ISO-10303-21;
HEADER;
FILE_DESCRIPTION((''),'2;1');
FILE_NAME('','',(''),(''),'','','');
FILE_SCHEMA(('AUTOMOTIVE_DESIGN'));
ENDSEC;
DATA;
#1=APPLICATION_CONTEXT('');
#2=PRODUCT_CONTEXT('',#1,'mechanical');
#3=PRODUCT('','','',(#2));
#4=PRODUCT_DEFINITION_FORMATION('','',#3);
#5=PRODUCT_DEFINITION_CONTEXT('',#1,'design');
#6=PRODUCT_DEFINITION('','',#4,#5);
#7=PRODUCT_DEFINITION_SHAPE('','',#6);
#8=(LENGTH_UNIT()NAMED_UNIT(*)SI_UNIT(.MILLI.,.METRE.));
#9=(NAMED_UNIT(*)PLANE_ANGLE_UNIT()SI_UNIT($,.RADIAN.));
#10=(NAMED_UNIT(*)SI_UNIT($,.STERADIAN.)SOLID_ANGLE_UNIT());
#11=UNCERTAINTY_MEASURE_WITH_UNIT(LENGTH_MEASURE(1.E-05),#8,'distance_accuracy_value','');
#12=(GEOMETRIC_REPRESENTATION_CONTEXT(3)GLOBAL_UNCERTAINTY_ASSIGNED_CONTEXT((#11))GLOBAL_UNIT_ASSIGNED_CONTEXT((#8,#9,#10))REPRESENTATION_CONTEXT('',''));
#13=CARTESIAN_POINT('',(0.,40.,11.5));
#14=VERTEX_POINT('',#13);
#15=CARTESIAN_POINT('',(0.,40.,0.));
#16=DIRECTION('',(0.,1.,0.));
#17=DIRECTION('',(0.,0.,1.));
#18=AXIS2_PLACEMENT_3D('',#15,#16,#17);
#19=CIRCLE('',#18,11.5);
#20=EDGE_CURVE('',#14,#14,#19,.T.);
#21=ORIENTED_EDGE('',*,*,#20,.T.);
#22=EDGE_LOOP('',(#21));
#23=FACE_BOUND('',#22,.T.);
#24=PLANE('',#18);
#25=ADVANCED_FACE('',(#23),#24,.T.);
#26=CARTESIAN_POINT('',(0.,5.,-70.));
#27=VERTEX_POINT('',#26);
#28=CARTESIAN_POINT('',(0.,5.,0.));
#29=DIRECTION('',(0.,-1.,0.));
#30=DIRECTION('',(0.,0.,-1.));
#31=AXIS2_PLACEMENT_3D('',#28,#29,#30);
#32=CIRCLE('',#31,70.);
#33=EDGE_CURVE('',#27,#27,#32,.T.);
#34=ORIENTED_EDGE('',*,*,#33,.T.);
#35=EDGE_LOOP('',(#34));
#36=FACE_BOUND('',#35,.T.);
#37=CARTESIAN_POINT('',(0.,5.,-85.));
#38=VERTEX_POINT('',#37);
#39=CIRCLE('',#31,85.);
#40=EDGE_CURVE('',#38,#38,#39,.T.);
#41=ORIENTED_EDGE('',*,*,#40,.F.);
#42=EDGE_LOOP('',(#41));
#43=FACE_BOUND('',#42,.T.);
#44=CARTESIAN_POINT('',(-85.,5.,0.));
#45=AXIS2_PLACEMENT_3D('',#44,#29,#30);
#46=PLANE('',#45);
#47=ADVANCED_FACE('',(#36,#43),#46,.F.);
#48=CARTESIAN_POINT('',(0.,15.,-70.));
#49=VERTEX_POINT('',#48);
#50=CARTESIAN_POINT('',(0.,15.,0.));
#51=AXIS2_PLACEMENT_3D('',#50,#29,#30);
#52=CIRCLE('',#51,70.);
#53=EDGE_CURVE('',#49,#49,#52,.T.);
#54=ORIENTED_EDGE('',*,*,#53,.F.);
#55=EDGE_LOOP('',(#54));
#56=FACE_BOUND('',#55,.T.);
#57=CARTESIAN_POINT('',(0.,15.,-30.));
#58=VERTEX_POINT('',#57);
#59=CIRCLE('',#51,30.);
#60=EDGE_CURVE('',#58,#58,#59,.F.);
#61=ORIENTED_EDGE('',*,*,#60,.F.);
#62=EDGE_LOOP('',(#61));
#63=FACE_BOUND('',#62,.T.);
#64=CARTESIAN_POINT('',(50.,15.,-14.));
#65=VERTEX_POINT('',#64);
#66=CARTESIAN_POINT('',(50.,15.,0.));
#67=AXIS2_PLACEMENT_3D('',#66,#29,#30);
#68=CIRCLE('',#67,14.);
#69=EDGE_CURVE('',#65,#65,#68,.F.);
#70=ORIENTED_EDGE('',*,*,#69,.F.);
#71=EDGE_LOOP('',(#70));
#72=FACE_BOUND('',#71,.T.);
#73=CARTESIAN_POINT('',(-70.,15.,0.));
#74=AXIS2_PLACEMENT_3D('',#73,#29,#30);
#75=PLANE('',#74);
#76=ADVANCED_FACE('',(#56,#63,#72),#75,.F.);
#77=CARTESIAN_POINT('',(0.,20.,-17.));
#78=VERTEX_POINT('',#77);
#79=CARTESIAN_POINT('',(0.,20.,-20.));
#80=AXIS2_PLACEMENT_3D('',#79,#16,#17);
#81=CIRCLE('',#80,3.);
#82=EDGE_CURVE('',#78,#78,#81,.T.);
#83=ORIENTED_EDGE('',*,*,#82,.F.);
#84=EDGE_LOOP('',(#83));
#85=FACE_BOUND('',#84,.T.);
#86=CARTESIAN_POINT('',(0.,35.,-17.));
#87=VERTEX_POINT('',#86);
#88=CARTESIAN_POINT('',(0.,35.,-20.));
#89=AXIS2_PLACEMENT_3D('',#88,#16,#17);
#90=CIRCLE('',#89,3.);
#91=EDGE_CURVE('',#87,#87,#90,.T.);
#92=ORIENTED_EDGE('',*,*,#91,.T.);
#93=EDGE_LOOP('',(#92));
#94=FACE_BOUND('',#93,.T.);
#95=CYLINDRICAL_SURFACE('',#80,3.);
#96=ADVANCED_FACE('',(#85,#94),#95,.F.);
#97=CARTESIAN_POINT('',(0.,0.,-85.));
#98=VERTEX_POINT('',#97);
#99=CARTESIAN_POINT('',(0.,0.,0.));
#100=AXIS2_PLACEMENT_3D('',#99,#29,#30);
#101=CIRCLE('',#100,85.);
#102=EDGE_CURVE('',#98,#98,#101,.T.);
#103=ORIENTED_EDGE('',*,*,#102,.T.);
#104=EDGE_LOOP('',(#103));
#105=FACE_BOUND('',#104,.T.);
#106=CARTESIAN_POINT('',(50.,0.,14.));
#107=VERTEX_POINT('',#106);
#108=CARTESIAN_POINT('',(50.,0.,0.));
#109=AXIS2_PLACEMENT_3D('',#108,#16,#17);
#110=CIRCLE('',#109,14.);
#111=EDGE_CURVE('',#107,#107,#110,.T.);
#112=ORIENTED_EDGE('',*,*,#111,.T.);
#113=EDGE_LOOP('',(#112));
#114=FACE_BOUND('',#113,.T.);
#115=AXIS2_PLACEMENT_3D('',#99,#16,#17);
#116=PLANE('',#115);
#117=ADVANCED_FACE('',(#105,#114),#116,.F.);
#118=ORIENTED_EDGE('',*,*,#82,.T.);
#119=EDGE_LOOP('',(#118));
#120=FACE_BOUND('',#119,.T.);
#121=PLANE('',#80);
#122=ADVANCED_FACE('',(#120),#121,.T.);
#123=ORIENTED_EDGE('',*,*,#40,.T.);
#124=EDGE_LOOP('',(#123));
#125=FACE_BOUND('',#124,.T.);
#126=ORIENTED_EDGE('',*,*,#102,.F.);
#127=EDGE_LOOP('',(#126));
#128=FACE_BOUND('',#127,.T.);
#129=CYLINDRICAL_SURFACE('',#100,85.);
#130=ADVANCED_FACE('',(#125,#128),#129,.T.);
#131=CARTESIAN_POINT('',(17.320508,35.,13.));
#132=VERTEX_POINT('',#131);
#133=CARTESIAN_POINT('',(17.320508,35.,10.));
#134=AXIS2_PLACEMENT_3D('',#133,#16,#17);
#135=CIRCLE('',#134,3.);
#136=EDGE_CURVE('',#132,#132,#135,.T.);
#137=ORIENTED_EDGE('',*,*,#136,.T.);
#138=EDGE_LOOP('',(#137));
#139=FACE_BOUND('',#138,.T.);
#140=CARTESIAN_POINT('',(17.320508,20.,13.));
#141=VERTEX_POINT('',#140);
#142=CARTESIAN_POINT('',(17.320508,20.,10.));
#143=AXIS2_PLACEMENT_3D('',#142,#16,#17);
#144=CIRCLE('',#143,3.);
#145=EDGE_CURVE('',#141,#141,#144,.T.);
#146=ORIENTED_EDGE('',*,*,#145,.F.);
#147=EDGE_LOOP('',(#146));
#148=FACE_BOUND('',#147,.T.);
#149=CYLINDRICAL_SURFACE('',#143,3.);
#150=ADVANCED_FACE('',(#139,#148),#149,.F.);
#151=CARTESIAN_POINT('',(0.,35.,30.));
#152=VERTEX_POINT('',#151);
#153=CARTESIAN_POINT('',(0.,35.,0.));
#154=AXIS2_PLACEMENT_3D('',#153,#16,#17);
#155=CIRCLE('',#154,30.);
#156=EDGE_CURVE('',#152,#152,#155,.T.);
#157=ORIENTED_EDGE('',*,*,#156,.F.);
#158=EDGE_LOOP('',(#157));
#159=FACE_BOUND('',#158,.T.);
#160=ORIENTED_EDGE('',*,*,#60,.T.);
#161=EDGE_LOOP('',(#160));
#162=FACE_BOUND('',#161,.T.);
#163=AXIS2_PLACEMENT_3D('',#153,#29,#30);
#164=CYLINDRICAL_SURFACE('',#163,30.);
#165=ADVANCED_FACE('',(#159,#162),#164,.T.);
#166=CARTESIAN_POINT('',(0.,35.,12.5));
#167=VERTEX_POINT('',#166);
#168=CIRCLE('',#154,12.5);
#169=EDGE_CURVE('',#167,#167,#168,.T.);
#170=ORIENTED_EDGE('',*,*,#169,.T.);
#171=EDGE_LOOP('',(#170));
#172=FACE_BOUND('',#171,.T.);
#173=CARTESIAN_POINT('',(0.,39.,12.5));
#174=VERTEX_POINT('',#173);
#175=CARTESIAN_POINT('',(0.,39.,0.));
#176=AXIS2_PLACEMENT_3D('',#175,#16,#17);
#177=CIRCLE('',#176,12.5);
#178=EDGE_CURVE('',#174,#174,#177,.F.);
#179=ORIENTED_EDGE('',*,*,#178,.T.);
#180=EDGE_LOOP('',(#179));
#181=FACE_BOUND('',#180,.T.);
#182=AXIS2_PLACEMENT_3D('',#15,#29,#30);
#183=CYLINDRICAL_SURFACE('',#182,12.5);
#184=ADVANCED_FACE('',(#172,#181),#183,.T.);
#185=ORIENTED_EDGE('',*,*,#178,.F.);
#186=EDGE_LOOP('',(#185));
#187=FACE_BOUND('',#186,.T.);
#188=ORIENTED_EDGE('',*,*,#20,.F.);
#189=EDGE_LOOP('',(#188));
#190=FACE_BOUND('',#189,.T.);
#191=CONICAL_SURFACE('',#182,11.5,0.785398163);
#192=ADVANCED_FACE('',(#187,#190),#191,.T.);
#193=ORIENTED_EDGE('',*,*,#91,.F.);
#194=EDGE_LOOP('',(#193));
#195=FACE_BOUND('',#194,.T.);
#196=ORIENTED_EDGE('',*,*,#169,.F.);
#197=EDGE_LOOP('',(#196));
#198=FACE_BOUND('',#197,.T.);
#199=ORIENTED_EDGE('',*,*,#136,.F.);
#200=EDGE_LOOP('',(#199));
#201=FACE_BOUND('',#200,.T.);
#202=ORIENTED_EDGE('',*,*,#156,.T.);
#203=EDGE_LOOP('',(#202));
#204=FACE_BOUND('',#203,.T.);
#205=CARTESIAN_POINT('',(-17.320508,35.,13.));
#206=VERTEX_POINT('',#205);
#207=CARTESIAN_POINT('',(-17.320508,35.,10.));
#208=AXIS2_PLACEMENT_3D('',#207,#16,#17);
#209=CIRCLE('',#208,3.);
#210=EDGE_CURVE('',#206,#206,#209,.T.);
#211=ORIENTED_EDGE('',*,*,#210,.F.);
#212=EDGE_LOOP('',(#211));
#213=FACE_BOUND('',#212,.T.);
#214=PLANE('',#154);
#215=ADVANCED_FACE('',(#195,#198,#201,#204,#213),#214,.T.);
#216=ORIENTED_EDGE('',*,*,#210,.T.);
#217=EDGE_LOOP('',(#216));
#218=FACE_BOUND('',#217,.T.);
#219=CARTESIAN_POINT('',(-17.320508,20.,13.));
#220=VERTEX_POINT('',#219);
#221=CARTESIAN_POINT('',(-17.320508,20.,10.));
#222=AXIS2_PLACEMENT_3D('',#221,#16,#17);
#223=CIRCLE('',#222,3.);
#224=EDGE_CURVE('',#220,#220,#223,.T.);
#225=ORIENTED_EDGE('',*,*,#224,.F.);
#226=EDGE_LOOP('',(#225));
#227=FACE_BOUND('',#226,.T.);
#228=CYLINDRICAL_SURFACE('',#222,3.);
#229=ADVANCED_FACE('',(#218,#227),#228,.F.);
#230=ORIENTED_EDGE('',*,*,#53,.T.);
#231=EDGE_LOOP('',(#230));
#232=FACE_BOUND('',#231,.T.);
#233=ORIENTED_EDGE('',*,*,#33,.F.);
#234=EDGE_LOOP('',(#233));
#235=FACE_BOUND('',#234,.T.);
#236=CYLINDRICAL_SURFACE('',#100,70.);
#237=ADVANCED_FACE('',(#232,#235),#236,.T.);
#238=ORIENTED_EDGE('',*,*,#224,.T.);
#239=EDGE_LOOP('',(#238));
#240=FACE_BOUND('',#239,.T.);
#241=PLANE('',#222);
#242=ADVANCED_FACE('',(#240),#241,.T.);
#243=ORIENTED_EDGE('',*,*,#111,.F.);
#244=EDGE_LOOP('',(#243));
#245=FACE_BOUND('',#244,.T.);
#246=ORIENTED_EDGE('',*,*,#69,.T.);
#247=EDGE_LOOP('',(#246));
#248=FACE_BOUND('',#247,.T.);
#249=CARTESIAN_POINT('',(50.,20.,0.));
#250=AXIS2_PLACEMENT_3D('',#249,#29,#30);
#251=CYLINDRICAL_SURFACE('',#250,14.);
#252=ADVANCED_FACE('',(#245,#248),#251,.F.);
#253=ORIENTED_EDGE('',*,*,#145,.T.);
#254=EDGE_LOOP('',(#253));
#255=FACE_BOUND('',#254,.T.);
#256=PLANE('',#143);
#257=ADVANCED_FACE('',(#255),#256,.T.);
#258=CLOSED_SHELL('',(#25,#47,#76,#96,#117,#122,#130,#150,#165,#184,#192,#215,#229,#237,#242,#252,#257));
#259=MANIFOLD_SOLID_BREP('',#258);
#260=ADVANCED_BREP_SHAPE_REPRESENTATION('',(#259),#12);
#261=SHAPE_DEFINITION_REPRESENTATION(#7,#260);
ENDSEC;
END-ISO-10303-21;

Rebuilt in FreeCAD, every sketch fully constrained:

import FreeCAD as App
import Part
import Sketcher


def edges_at(feature, points):
    """Names of the edges that pass closest to the given points."""
    edges = feature.Shape.Edges
    near = lambda p: min(range(len(edges)), key=lambda i: edges[i].distToShape(Part.Vertex(*p))[0])
    return sorted({f"Edge{near(p) + 1}" for p in points})

doc = App.newDocument("Part")
body = doc.addObject("PartDesign::Body", "Body")

# Sketch on XY plane
sketch1 = body.newObject("Sketcher::SketchObject", "Sketch")
sketch1.AttachmentSupport = (doc.getObject("XY_Plane"), [""])
sketch1.MapMode = "FlatFace"
sketch1.addGeometry(Part.LineSegment(App.Vector(0, 0, 0), App.Vector(0, 15, 0)), False)
sketch1.addGeometry(Part.LineSegment(App.Vector(0, 15, 0), App.Vector(-70, 15, 0)), False)
sketch1.addGeometry(Part.LineSegment(App.Vector(-70, 15, 0), App.Vector(-70, 5, 0)), False)
sketch1.addGeometry(Part.LineSegment(App.Vector(-70, 5, 0), App.Vector(-85, 5, 0)), False)
sketch1.addGeometry(Part.LineSegment(App.Vector(-85, 5, 0), App.Vector(-85, 0, 0)), False)
sketch1.addGeometry(Part.LineSegment(App.Vector(-85, 0, 0), App.Vector(0, 0, 0)), False)
sketch1.addConstraint(Sketcher.Constraint("Coincident", 0, 2, 1, 1))
sketch1.addConstraint(Sketcher.Constraint("Coincident", 1, 2, 2, 1))
sketch1.addConstraint(Sketcher.Constraint("Coincident", 2, 2, 3, 1))
sketch1.addConstraint(Sketcher.Constraint("Coincident", 3, 2, 4, 1))
sketch1.addConstraint(Sketcher.Constraint("Coincident", 4, 2, 5, 1))
sketch1.addConstraint(Sketcher.Constraint("Coincident", 5, 2, 0, 1))
sketch1.addConstraint(Sketcher.Constraint("Vertical", 0))
sketch1.addConstraint(Sketcher.Constraint("Horizontal", 1))
sketch1.addConstraint(Sketcher.Constraint("Vertical", 2))
sketch1.addConstraint(Sketcher.Constraint("Horizontal", 3))
sketch1.addConstraint(Sketcher.Constraint("Vertical", 4))
sketch1.addConstraint(Sketcher.Constraint("Horizontal", 5))
sketch1.addConstraint(Sketcher.Constraint("Coincident", 5, 2, -1, 1))
sketch1.addConstraint(Sketcher.Constraint("Equal", 3, 0))
sketch1.addConstraint(Sketcher.Constraint("DistanceX", 1, 2, 1, 1, 70.0))
sketch1.addConstraint(Sketcher.Constraint("DistanceX", 3, 2, 3, 1, 15.0))
sketch1.addConstraint(Sketcher.Constraint("DistanceY", 2, 2, 2, 1, 10.0))
revolution = body.newObject("PartDesign::Revolution", "Revolution")
revolution.Profile = sketch1
revolution.ReferenceAxis = (sketch1, ["V_Axis"])
revolution.Angle = 360

# Sketch on XZ plane
sketch2 = body.newObject("Sketcher::SketchObject", "Sketch001")
sketch2.AttachmentSupport = (doc.getObject("XZ_Plane"), [""])
sketch2.MapMode = "FlatFace"
sketch2.addGeometry(Part.Circle(App.Vector(50, 0, 0), App.Vector(0, 0, 1), 14), False)
sketch2.addConstraint(Sketcher.Constraint("PointOnObject", 0, 3, -1))
sketch2.addConstraint(Sketcher.Constraint("Diameter", 0, 28.0))
sketch2.addConstraint(Sketcher.Constraint("DistanceX", -1, 1, 0, 3, 50.0))
pocket1 = body.newObject("PartDesign::Pocket", "Pocket")
pocket1.Profile = sketch2
pocket1.Length = 20

# Sketch on XZ plane
sketch3 = body.newObject("Sketcher::SketchObject", "Sketch002")
sketch3.AttachmentSupport = (doc.getObject("XZ_Plane"), [""])
sketch3.MapMode = "FlatFace"
sketch3.AttachmentOffset = App.Placement(App.Vector(0, 0, -15), App.Rotation())
sketch3.addGeometry(Part.Circle(App.Vector(0, 0, 0), App.Vector(0, 0, 1), 30), False)
sketch3.addConstraint(Sketcher.Constraint("Coincident", 0, 3, -1, 1))
sketch3.addConstraint(Sketcher.Constraint("Diameter", 0, 60.0))
pad1 = body.newObject("PartDesign::Pad", "Pad")
pad1.Profile = sketch3
pad1.Length = 20
pad1.Reversed = True

# Sketch on XZ plane
sketch4 = body.newObject("Sketcher::SketchObject", "Sketch003")
sketch4.AttachmentSupport = (doc.getObject("XZ_Plane"), [""])
sketch4.MapMode = "FlatFace"
sketch4.AttachmentOffset = App.Placement(App.Vector(0, 0, -35), App.Rotation())
sketch4.addGeometry(Part.Circle(App.Vector(0, 0, 0), App.Vector(0, 0, 1), 12.5), False)
sketch4.addConstraint(Sketcher.Constraint("Coincident", 0, 3, -1, 1))
sketch4.addConstraint(Sketcher.Constraint("Diameter", 0, 25.0))
pad2 = body.newObject("PartDesign::Pad", "Pad001")
pad2.Profile = sketch4
pad2.Length = 5
pad2.Reversed = True
doc.recompute()

chamfer = body.newObject("PartDesign::Chamfer", "Chamfer")
chamfer.Base = (pad2, edges_at(pad2, [(-12.5, 40, 0)]))
chamfer.Size = 1

# Sketch on XZ plane
sketch5 = body.newObject("Sketcher::SketchObject", "Sketch004")
sketch5.AttachmentSupport = (doc.getObject("XZ_Plane"), [""])
sketch5.MapMode = "FlatFace"
sketch5.AttachmentOffset = App.Placement(App.Vector(0, 0, -35), App.Rotation())
sketch5.addGeometry(Part.Circle(App.Vector(0, -20, 0), App.Vector(0, 0, 1), 3), False)
sketch5.addGeometry(Part.Circle(App.Vector(17.320508, 10, 0), App.Vector(0, 0, 1), 3), False)
sketch5.addGeometry(Part.Circle(App.Vector(-17.320508, 10, 0), App.Vector(0, 0, 1), 3), False)
sketch5.addConstraint(Sketcher.Constraint("Equal", 0, 1))
sketch5.addConstraint(Sketcher.Constraint("Equal", 1, 2))
sketch5.addConstraint(Sketcher.Constraint("Symmetric", 1, 3, 2, 3, -2))
sketch5.addConstraint(Sketcher.Constraint("PointOnObject", 0, 3, -2))
sketch5.addConstraint(Sketcher.Constraint("Diameter", 0, 6.0))
sketch5.addConstraint(Sketcher.Constraint("DistanceY", 0, 3, -1, 1, 20.0))
sketch5.addConstraint(Sketcher.Constraint("DistanceY", -1, 1, 1, 3, 10.0))
sketch5.addConstraint(Sketcher.Constraint("DistanceX", -1, 1, 1, 3, 17.320508))
pocket2 = body.newObject("PartDesign::Pocket", "Pocket001")
pocket2.Profile = sketch5
pocket2.Length = 15
pocket2.Reversed = True

doc.recompute()
